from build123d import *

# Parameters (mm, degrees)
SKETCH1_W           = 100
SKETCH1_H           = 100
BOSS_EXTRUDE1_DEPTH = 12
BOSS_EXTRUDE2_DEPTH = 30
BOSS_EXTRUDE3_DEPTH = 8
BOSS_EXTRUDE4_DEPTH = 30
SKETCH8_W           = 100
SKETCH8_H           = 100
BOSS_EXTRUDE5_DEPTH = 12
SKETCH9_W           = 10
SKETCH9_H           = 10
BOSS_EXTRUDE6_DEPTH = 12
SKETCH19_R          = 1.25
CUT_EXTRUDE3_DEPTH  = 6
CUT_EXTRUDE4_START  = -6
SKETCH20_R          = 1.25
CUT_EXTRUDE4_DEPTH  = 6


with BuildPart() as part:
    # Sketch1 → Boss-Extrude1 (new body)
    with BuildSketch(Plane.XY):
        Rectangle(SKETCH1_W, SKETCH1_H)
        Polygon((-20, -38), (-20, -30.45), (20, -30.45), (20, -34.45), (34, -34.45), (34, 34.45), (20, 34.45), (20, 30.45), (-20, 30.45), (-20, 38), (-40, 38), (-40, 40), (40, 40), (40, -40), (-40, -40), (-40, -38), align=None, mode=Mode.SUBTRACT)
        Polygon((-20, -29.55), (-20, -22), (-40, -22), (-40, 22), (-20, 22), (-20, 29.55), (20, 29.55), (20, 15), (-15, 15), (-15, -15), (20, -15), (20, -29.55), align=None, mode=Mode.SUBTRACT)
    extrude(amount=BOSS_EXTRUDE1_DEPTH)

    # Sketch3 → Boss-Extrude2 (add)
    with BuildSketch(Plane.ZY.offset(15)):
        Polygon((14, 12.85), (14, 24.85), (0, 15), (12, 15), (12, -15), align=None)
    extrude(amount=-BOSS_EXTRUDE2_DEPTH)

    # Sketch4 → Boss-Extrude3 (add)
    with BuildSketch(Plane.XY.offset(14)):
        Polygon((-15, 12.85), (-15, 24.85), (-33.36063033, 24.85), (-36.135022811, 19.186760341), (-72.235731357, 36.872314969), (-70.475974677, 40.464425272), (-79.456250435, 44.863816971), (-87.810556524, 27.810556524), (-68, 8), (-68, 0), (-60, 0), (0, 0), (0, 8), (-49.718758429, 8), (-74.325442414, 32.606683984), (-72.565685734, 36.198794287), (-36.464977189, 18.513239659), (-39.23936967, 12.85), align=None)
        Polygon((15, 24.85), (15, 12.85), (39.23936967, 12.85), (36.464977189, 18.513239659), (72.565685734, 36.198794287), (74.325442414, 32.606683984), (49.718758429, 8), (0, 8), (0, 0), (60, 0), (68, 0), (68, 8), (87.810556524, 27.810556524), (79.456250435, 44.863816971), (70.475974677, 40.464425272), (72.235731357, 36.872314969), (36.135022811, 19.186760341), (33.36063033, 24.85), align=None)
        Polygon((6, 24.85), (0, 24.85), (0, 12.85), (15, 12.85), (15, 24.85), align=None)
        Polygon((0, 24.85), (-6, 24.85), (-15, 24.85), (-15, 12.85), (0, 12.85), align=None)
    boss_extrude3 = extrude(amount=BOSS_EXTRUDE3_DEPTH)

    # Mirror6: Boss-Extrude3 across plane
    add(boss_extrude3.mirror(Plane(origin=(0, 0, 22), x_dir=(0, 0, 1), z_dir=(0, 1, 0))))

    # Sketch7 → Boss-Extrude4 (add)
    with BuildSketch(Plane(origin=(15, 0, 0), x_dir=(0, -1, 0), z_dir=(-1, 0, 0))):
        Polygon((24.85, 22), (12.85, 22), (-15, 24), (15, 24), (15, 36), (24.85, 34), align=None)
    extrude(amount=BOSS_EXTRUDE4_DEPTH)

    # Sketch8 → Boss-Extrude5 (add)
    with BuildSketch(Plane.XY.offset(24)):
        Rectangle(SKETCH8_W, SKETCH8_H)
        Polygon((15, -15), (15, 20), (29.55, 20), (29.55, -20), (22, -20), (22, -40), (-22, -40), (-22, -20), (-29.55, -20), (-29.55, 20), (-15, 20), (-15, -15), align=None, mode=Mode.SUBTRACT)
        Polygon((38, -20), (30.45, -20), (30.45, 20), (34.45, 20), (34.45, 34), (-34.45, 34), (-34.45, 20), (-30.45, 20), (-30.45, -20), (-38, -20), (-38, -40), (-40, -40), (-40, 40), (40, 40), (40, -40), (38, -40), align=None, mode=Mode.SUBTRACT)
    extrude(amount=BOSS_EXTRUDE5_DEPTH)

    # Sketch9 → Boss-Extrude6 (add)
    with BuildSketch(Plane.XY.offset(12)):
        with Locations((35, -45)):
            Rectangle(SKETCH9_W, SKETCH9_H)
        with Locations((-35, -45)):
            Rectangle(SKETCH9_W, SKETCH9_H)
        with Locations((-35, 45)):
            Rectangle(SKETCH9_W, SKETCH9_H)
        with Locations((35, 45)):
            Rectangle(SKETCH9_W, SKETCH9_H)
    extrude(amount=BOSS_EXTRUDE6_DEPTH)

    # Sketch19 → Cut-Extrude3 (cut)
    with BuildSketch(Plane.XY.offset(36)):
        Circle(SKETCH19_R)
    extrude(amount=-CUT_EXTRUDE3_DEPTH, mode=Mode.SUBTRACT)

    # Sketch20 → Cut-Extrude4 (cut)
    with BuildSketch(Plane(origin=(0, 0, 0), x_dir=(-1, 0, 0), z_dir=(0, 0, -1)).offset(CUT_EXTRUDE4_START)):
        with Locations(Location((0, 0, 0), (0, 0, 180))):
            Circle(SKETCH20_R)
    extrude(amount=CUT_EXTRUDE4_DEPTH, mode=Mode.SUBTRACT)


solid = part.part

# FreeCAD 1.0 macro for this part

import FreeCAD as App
import Part
import Sketcher
Q = App.Units.Quantity


def add_polygon(sketch, points):
    """Adds a closed chain of lines whose ends are joined by coincident constraints."""
    first, n = sketch.GeometryCount, len(points)
    for a, b in zip(points, points[1:] + points[:1]):
        sketch.addGeometry(Part.LineSegment(App.Vector(*a, 0), App.Vector(*b, 0)), False)
    for i in range(n):
        sketch.addConstraint(Sketcher.Constraint("Coincident", first + i, 2, first + (i + 1) % n, 1))

doc = App.newDocument("Part")
params = doc.addObject("Spreadsheet::Sheet", "Params")
for row, (alias, value) in enumerate([
    ("sketch1_width", "100 mm"),
    ("sketch1_width2", "40 mm"),
    ("sketch1_width3", "20 mm"),
    ("sketch1_width4", "35 mm"),
    ("sketch1_width5", "14 mm"),
    ("pad1_length", "12 mm"),
    ("sketch2_width", "12 mm"),
    ("sketch2_width2", "30 mm"),
    ("pad2_length", "30 mm"),
    ("sketch3_width", "136 mm"),
    ("sketch3_height", "8 mm"),
    ("sketch3_length", "4 mm"),
    ("sketch3_length2", "10 mm"),
    ("sketch3_length3", "40.2 mm"),
    ("pad3_length", "8 mm"),
    ("sketch4_width", "12 mm"),
    ("sketch4_width2", "30 mm"),
    ("pad4_length", "30 mm"),
    ("sketch5_width", "100 mm"),
    ("sketch5_width2", "30 mm"),
    ("sketch5_width3", "44 mm"),
    ("sketch5_width4", "4 mm"),
    ("sketch5_width5", "2 mm"),
    ("pad5_length", "12 mm"),
    ("sketch6_width", "10 mm"),
    ("pad6_length", "12 mm"),
    ("sketch7_diameter", "2.5 mm"),
    ("pocket1_length", "6 mm"),
    ("sketch8_diameter", "2.5 mm"),
    ("pocket2_length", "6 mm"),
], start=1):
    params.set(f"A{row}", alias)
    params.set(f"B{row}", "=" + value)
    params.setAlias(f"B{row}", alias)

body = doc.addObject("PartDesign::Body", "Body")

sketch1 = body.newObject("Sketcher::SketchObject", "Sketch")
sketch1.AttachmentSupport = (doc.getObject("XY_Plane"), [""])
sketch1.MapMode = "FlatFace"
add_polygon(sketch1, [(-50, 50), (-50, -50), (50, -50), (50, 50)])
add_polygon(sketch1, [(20, -29.55), (-20, -29.55), (-20, -22), (-40, -22), (-40, 22), (-20, 22), (-20, 29.55), (20, 29.55), (20, 15), (-15, 15), (-15, -15), (20, -15)])
add_polygon(sketch1, [(-40, -38), (-20, -38), (-20, -30.45), (20, -30.45), (20, -34.45), (34, -34.45), (34, 34.45), (20, 34.45), (20, 30.45), (-20, 30.45), (-20, 38), (-40, 38), (-40, 40), (40, 40), (40, -40), (-40, -40)])
sketch1.addConstraint(Sketcher.Constraint("Vertical", 0))
sketch1.addConstraint(Sketcher.Constraint("Horizontal", 1))
sketch1.addConstraint(Sketcher.Constraint("Vertical", 2))
sketch1.addConstraint(Sketcher.Constraint("Horizontal", 3))
sketch1.addConstraint(Sketcher.Constraint("Horizontal", 4))
sketch1.addConstraint(Sketcher.Constraint("Vertical", 5))
sketch1.addConstraint(Sketcher.Constraint("Horizontal", 6))
sketch1.addConstraint(Sketcher.Constraint("Vertical", 7))
sketch1.addConstraint(Sketcher.Constraint("Horizontal", 8))
sketch1.addConstraint(Sketcher.Constraint("Vertical", 9))
sketch1.addConstraint(Sketcher.Constraint("Horizontal", 10))
sketch1.addConstraint(Sketcher.Constraint("Vertical", 11))
sketch1.addConstraint(Sketcher.Constraint("Horizontal", 12))
sketch1.addConstraint(Sketcher.Constraint("Vertical", 13))
sketch1.addConstraint(Sketcher.Constraint("Horizontal", 14))
sketch1.addConstraint(Sketcher.Constraint("Vertical", 15))
sketch1.addConstraint(Sketcher.Constraint("Horizontal", 16))
sketch1.addConstraint(Sketcher.Constraint("Vertical", 17))
sketch1.addConstraint(Sketcher.Constraint("Horizontal", 18))
sketch1.addConstraint(Sketcher.Constraint("Vertical", 19))
sketch1.addConstraint(Sketcher.Constraint("Horizontal", 20))
sketch1.addConstraint(Sketcher.Constraint("Vertical", 21))
sketch1.addConstraint(Sketcher.Constraint("Horizontal", 22))
sketch1.addConstraint(Sketcher.Constraint("Vertical", 23))
sketch1.addConstraint(Sketcher.Constraint("Horizontal", 24))
sketch1.addConstraint(Sketcher.Constraint("Vertical", 25))
sketch1.addConstraint(Sketcher.Constraint("Horizontal", 26))
sketch1.addConstraint(Sketcher.Constraint("Vertical", 27))
sketch1.addConstraint(Sketcher.Constraint("Horizontal", 28))
sketch1.addConstraint(Sketcher.Constraint("Vertical", 29))
sketch1.addConstraint(Sketcher.Constraint("Horizontal", 30))
sketch1.addConstraint(Sketcher.Constraint("Vertical", 31))
sketch1.addConstraint(Sketcher.Constraint("Symmetric", 0, 2, 2, 2, -1, 1))
sketch1.addConstraint(Sketcher.Constraint("Symmetric", 4, 2, 10, 2, -1, 1))
sketch1.addConstraint(Sketcher.Constraint("Symmetric", 17, 2, 23, 2, -1, 1))
sketch1.addConstraint(Sketcher.Constraint("Symmetric", 27, 2, 29, 2, -1, 1))
sketch1.addConstraint(Sketcher.Constraint("Symmetric", 5, 2, 8, 2, -1))
sketch1.addConstraint(Sketcher.Constraint("Symmetric", 11, 2, 14, 2, -1))
sketch1.addConstraint(Sketcher.Constraint("Symmetric", 19, 2, 22, 2, -1))
sketch1.addConstraint(Sketcher.Constraint("Symmetric", 16, 2, 25, 2, -1))
sketch1.addConstraint(Sketcher.Constraint("Vertical", 9, 2, 16, 2))
sketch1.addConstraint(Sketcher.Constraint("Vertical", 7, 2, 26, 2))
sketch1.addConstraint(Sketcher.Constraint("Vertical", 27, 2, 30, 2))
sketch1.addConstraint(Sketcher.Constraint("Equal", 3, 0))
sketch1.addConstraint(Sketcher.Constraint("Equal", 9, 17))
sketch1.addConstraint(Sketcher.Constraint("Equal", 30, 29))
sketch1.addConstraint(Sketcher.Constraint("DistanceX", 1, 1, 1, 2, 100.0))
sketch1.addConstraint(Sketcher.Constraint("DistanceX", 4, 2, 4, 1, 40.0))
sketch1.addConstraint(Sketcher.Constraint("DistanceX", 6, 2, 6, 1, 20.0))
sketch1.addConstraint(Sketcher.Constraint("DistanceX", 12, 2, 12, 1, 35.0))
sketch1.addConstraint(Sketcher.Constraint("DistanceX", 20, 1, 20, 2, 14.0))
sketch1.addConstraint(Sketcher.Constraint("DistanceY", 7, 1, 7, 2, 44.0))
sketch1.addConstraint(Sketcher.Constraint("DistanceY", 13, 2, 13, 1, 30.0))
sketch1.addConstraint(Sketcher.Constraint("DistanceY", 19, 2, 19, 1, 4.0))
sketch1.addConstraint(Sketcher.Constraint("DistanceY", 27, 1, 27, 2, 2.0))
sketch1.addConstraint(Sketcher.Constraint("DistanceY", 21, 1, 21, 2, 68.9))
sketch1.setExpression("Constraints[78]", "Params.sketch1_width")
sketch1.setExpression("Constraints[79]", "Params.sketch1_width2")
sketch1.setExpression("Constraints[80]", "Params.sketch1_width3")
sketch1.setExpression("Constraints[81]", "Params.sketch1_width4")
sketch1.setExpression("Constraints[82]", "Params.sketch1_width5")
pad1 = body.newObject("PartDesign::Pad", "Pad")
pad1.Profile = sketch1
pad1.setExpression("Length", "Params.pad1_length")

sketch2 = body.newObject("Sketcher::SketchObject", "Sketch001")
sketch2.AttachmentSupport = (doc.getObject("YZ_Plane"), [""])
sketch2.MapMode = "FlatFace"
sketch2.AttachmentOffset = App.Placement(App.Vector(0, 0, -15), App.Rotation())
add_polygon(sketch2, [(12.85, 14), (24.85, 14), (15, 0), (15, 12), (-15, 12)])
sketch2.addConstraint(Sketcher.Constraint("Horizontal", 0))
sketch2.addConstraint(Sketcher.Constraint("Vertical", 2))
sketch2.addConstraint(Sketcher.Constraint("Horizontal", 3))
sketch2.addConstraint(Sketcher.Constraint("PointOnObject", 1, 2, -1))
sketch2.addConstraint(Sketcher.Constraint("Equal", 0, 2))
sketch2.addConstraint(Sketcher.Constraint("DistanceX", 0, 1, 0, 2, 12.0))
sketch2.addConstraint(Sketcher.Constraint("DistanceX", 3, 2, 3, 1, 30.0))
sketch2.addConstraint(Sketcher.Constraint("DistanceY", -1, 1, 0, 2, 14.0))
sketch2.addConstraint(Sketcher.Constraint("DistanceX", -1, 1, 1, 2, 15.0))
sketch2.addConstraint(Sketcher.Constraint("DistanceX", -1, 1, 0, 2, 24.85))
sketch2.setExpression("Constraints[10]", "Params.sketch2_width")
sketch2.setExpression("Constraints[11]", "Params.sketch2_width2")
pad2 = body.newObject("PartDesign::Pad", "Pad001")
pad2.Profile = sketch2
pad2.setExpression("Length", "Params.pad2_length")

sketch3 = body.newObject("Sketcher::SketchObject", "Sketch002")
sketch3.AttachmentSupport = (doc.getObject("XY_Plane"), [""])
sketch3.MapMode = "FlatFace"
sketch3.AttachmentOffset = App.Placement(App.Vector(0, 0, 14), App.Rotation())
add_polygon(sketch3, [(-33.36063, 24.85), (-36.135023, 19.18676), (-72.235731, 36.872315), (-70.475975, 40.464425), (-79.45625, 44.863817), (-87.810557, 27.810557), (-68, 8), (-68, 0), (68, 0), (68, 8), (87.810557, 27.810557), (79.45625, 44.863817), (70.475975, 40.464425), (72.235731, 36.872315), (36.135023, 19.18676), (33.36063, 24.85)])
add_polygon(sketch3, [(39.23937, 12.85), (36.464977, 18.51324), (72.565686, 36.198794), (74.325442, 32.606684), (49.718758, 8), (-49.718758, 8), (-74.325442, 32.606684), (-72.565686, 36.198794), (-36.464977, 18.51324), (-39.23937, 12.85)])
sketch3.addConstraint(Sketcher.Constraint("Vertical", 6))
sketch3.addConstraint(Sketcher.Constraint("Horizontal", 7))
sketch3.addConstraint(Sketcher.Constraint("Vertical", 8))
sketch3.addConstraint(Sketcher.Constraint("Horizontal", 15))
sketch3.addConstraint(Sketcher.Constraint("Horizontal", 20))
sketch3.addConstraint(Sketcher.Constraint("Horizontal", 25))
sketch3.addConstraint(Sketcher.Constraint("Symmetric", 6, 2, 7, 2, -1, 1))
sketch3.addConstraint(Sketcher.Constraint("Symmetric", 4, 2, 9, 2, -2))
sketch3.addConstraint(Sketcher.Constraint("Symmetric", 3, 2, 10, 2, -2))
sketch3.addConstraint(Sketcher.Constraint("Symmetric", 2, 2, 11, 2, -2))
sketch3.addConstraint(Sketcher.Constraint("Symmetric", 1, 2, 12, 2, -2))
sketch3.addConstraint(Sketcher.Constraint("Symmetric", 0, 2, 13, 2, -2))
sketch3.addConstraint(Sketcher.Constraint("Symmetric", 18, 2, 21, 2, -2))
sketch3.addConstraint(Sketcher.Constraint("Symmetric", 17, 2, 22, 2, -2))
sketch3.addConstraint(Sketcher.Constraint("Symmetric", 16, 2, 23, 2, -2))
sketch3.addConstraint(Sketcher.Constraint("Perpendicular", 0, 1))
sketch3.addConstraint(Sketcher.Constraint("Perpendicular", 1, 2))
sketch3.addConstraint(Sketcher.Constraint("Perpendicular", 2, 3))
sketch3.addConstraint(Sketcher.Constraint("Perpendicular", 3, 4))
sketch3.addConstraint(Sketcher.Constraint("Perpendicular", 5, 9))
sketch3.addConstraint(Sketcher.Constraint("Perpendicular", 13, 14))
sketch3.addConstraint(Sketcher.Constraint("Parallel", 14, 16))
sketch3.addConstraint(Sketcher.Constraint("Perpendicular", 16, 17))
sketch3.addConstraint(Sketcher.Constraint("Perpendicular", 17, 18))
sketch3.addConstraint(Sketcher.Constraint("Parallel", 9, 19))
sketch3.addConstraint(Sketcher.Constraint("Perpendicular", 19, 21))
sketch3.addConstraint(Sketcher.Constraint("Perpendicular", 23, 24))
sketch3.addConstraint(Sketcher.Constraint("Horizontal", 5, 2, 8, 2))
sketch3.addConstraint(Sketcher.Constraint("Horizontal", 8, 2, 19, 2))
sketch3.addConstraint(Sketcher.Constraint("Equal", 14, 16))
sketch3.addConstraint(Sketcher.Constraint("Equal", 13, 17))
sketch3.addConstraint(Sketcher.Constraint("Equal", 12, 18))
sketch3.addConstraint(Sketcher.Constraint("DistanceX", 7, 1, 7, 2, 136.0))
sketch3.addConstraint(Sketcher.Constraint("DistanceY", 6, 2, 6, 1, 8.0))
sketch3.addConstraint(Sketcher.Constraint("Distance", 2, 4.0))
sketch3.addConstraint(Sketcher.Constraint("Distance", 3, 10.0))
sketch3.addConstraint(Sketcher.Constraint("Angle", 0, Q("-116.1 deg")))
sketch3.addConstraint(Sketcher.Constraint("DistanceY", 24, 2, 15, 2, 12.0))
sketch3.addConstraint(Sketcher.Constraint("Distance", 1, 40.2))
sketch3.addConstraint(Sketcher.Constraint("DistanceY", -1, 1, 14, 2, 24.85))
sketch3.addConstraint(Sketcher.Constraint("DistanceX", 15, 2, 15, 1, 66.721261))
sketch3.addConstraint(Sketcher.Constraint("DistanceX", 25, 1, 25, 2, 78.478739))
sketch3.addConstraint(Sketcher.Constraint("DistanceX", 14, 2, 12, 2, 38.875101))
sketch3.setExpression("Constraints[58]", "Params.sketch3_width")
sketch3.setExpression("Constraints[59]", "Params.sketch3_height")
sketch3.setExpression("Constraints[60]", "Params.sketch3_length")
sketch3.setExpression("Constraints[61]", "Params.sketch3_length2")
sketch3.setExpression("Constraints[64]", "Params.sketch3_length3")
pad3 = body.newObject("PartDesign::Pad", "Pad002")
pad3.Profile = sketch3
pad3.setExpression("Length", "Params.pad3_length")
doc.recompute()

mirrored = body.newObject("PartDesign::Mirrored", "Mirrored")
mirrored.Originals = [pad3]
mirrored.MirrorPlane = (doc.getObject("XZ_Plane"), [""])
body.Tip = mirrored

sketch4 = body.newObject("Sketcher::SketchObject", "Sketch003")
sketch4.AttachmentSupport = (doc.getObject("YZ_Plane"), [""])
sketch4.MapMode = "FlatFace"
sketch4.AttachmentOffset = App.Placement(App.Vector(0, 0, 15), App.Rotation())
add_polygon(sketch4, [(-12.85, 22), (-24.85, 22), (-24.85, 34), (-15, 36), (-15, 24), (15, 24)])
sketch4.addConstraint(Sketcher.Constraint("Horizontal", 0))
sketch4.addConstraint(Sketcher.Constraint("Vertical", 1))
sketch4.addConstraint(Sketcher.Constraint("Vertical", 3))
sketch4.addConstraint(Sketcher.Constraint("Horizontal", 4))
sketch4.addConstraint(Sketcher.Constraint("Equal", 0, 1))
sketch4.addConstraint(Sketcher.Constraint("Equal", 1, 3))
sketch4.addConstraint(Sketcher.Constraint("DistanceX", 0, 2, 0, 1, 12.0))
sketch4.addConstraint(Sketcher.Constraint("DistanceX", 4, 1, 4, 2, 30.0))
sketch4.addConstraint(Sketcher.Constraint("DistanceY", -1, 1, 0, 2, 22.0))
sketch4.addConstraint(Sketcher.Constraint("DistanceX", 2, 2, -1, 1, 15.0))
sketch4.addConstraint(Sketcher.Constraint("DistanceY", -1, 1, 2, 2, 36.0))
sketch4.addConstraint(Sketcher.Constraint("DistanceX", 0, 2, -1, 1, 24.85))
sketch4.setExpression("Constraints[12]", "Params.sketch4_width")
sketch4.setExpression("Constraints[13]", "Params.sketch4_width2")
pad4 = body.newObject("PartDesign::Pad", "Pad003")
pad4.Profile = sketch4
pad4.setExpression("Length", "Params.pad4_length")
pad4.Reversed = True

sketch5 = body.newObject("Sketcher::SketchObject", "Sketch004")
sketch5.AttachmentSupport = (doc.getObject("XY_Plane"), [""])
sketch5.MapMode = "FlatFace"
sketch5.AttachmentOffset = App.Placement(App.Vector(0, 0, 24), App.Rotation())
add_polygon(sketch5, [(-50, 50), (-50, -50), (50, -50), (50, 50)])
add_polygon(sketch5, [(-15, -15), (15, -15), (15, 20), (29.55, 20), (29.55, -20), (22, -20), (22, -40), (-22, -40), (-22, -20), (-29.55, -20), (-29.55, 20), (-15, 20)])
add_polygon(sketch5, [(38, -40), (38, -20), (30.45, -20), (30.45, 20), (34.45, 20), (34.45, 34), (-34.45, 34), (-34.45, 20), (-30.45, 20), (-30.45, -20), (-38, -20), (-38, -40), (-40, -40), (-40, 40), (40, 40), (40, -40)])
sketch5.addConstraint(Sketcher.Constraint("Vertical", 0))
sketch5.addConstraint(Sketcher.Constraint("Horizontal", 1))
sketch5.addConstraint(Sketcher.Constraint("Vertical", 2))
sketch5.addConstraint(Sketcher.Constraint("Horizontal", 3))
sketch5.addConstraint(Sketcher.Constraint("Horizontal", 4))
sketch5.addConstraint(Sketcher.Constraint("Vertical", 5))
sketch5.addConstraint(Sketcher.Constraint("Horizontal", 6))
sketch5.addConstraint(Sketcher.Constraint("Vertical", 7))
sketch5.addConstraint(Sketcher.Constraint("Horizontal", 8))
sketch5.addConstraint(Sketcher.Constraint("Vertical", 9))
sketch5.addConstraint(Sketcher.Constraint("Horizontal", 10))
sketch5.addConstraint(Sketcher.Constraint("Vertical", 11))
sketch5.addConstraint(Sketcher.Constraint("Horizontal", 12))
sketch5.addConstraint(Sketcher.Constraint("Vertical", 13))
sketch5.addConstraint(Sketcher.Constraint("Horizontal", 14))
sketch5.addConstraint(Sketcher.Constraint("Vertical", 15))
sketch5.addConstraint(Sketcher.Constraint("Vertical", 16))
sketch5.addConstraint(Sketcher.Constraint("Horizontal", 17))
sketch5.addConstraint(Sketcher.Constraint("Vertical", 18))
sketch5.addConstraint(Sketcher.Constraint("Horizontal", 19))
sketch5.addConstraint(Sketcher.Constraint("Vertical", 20))
sketch5.addConstraint(Sketcher.Constraint("Horizontal", 21))
sketch5.addConstraint(Sketcher.Constraint("Vertical", 22))
sketch5.addConstraint(Sketcher.Constraint("Horizontal", 23))
sketch5.addConstraint(Sketcher.Constraint("Vertical", 24))
sketch5.addConstraint(Sketcher.Constraint("Horizontal", 25))
sketch5.addConstraint(Sketcher.Constraint("Vertical", 26))
sketch5.addConstraint(Sketcher.Constraint("Horizontal", 27))
sketch5.addConstraint(Sketcher.Constraint("Vertical", 28))
sketch5.addConstraint(Sketcher.Constraint("Horizontal", 29))
sketch5.addConstraint(Sketcher.Constraint("Vertical", 30))
sketch5.addConstraint(Sketcher.Constraint("Horizontal", 31))
sketch5.addConstraint(Sketcher.Constraint("Symmetric", 0, 2, 2, 2, -1, 1))
sketch5.addConstraint(Sketcher.Constraint("Symmetric", 6, 2, 12, 2, -1, 1))
sketch5.addConstraint(Sketcher.Constraint("Symmetric", 17, 2, 23, 2, -1, 1))
sketch5.addConstraint(Sketcher.Constraint("Symmetric", 27, 2, 29, 2, -1, 1))
sketch5.addConstraint(Sketcher.Constraint("Symmetric", 8, 2, 11, 2, -2))
sketch5.addConstraint(Sketcher.Constraint("Symmetric", 5, 2, 14, 2, -2))
sketch5.addConstraint(Sketcher.Constraint("Symmetric", 19, 2, 22, 2, -2))
sketch5.addConstraint(Sketcher.Constraint("Symmetric", 16, 2, 25, 2, -2))
sketch5.addConstraint(Sketcher.Constraint("Horizontal", 12, 2, 16, 2))
sketch5.addConstraint(Sketcher.Constraint("Horizontal", 10, 2, 26, 2))
sketch5.addConstraint(Sketcher.Constraint("Horizontal", 27, 2, 30, 2))
sketch5.addConstraint(Sketcher.Constraint("Equal", 12, 17))
sketch5.addConstraint(Sketcher.Constraint("Equal", 3, 0))
sketch5.addConstraint(Sketcher.Constraint("Equal", 29, 28))
sketch5.addConstraint(Sketcher.Constraint("DistanceX", 1, 1, 1, 2, 100.0))
sketch5.addConstraint(Sketcher.Constraint("DistanceX", 4, 1, 4, 2, 30.0))
sketch5.addConstraint(Sketcher.Constraint("DistanceX", 10, 2, 10, 1, 44.0))
sketch5.addConstraint(Sketcher.Constraint("DistanceX", 19, 1, 19, 2, 4.0))
sketch5.addConstraint(Sketcher.Constraint("DistanceX", 27, 2, 27, 1, 2.0))
sketch5.addConstraint(Sketcher.Constraint("DistanceX", 29, 1, 29, 2, 80.0))
sketch5.addConstraint(Sketcher.Constraint("DistanceY", 5, 1, 5, 2, 35.0))
sketch5.addConstraint(Sketcher.Constraint("DistanceY", 7, 2, 7, 1, 40.0))
sketch5.addConstraint(Sketcher.Constraint("DistanceY", 20, 1, 20, 2, 14.0))
sketch5.addConstraint(Sketcher.Constraint("DistanceX", 21, 2, 21, 1, 68.9))
sketch5.setExpression("Constraints[78]", "Params.sketch5_width")
sketch5.setExpression("Constraints[79]", "Params.sketch5_width2")
sketch5.setExpression("Constraints[80]", "Params.sketch5_width3")
sketch5.setExpression("Constraints[81]", "Params.sketch5_width4")
sketch5.setExpression("Constraints[82]", "Params.sketch5_width5")
pad5 = body.newObject("PartDesign::Pad", "Pad004")
pad5.Profile = sketch5
pad5.setExpression("Length", "Params.pad5_length")

sketch6 = body.newObject("Sketcher::SketchObject", "Sketch005")
sketch6.AttachmentSupport = (doc.getObject("XY_Plane"), [""])
sketch6.MapMode = "FlatFace"
sketch6.AttachmentOffset = App.Placement(App.Vector(0, 0, 12), App.Rotation())
add_polygon(sketch6, [(30, -40), (30, -50), (40, -50), (40, -40)])
add_polygon(sketch6, [(-40, -40), (-40, -50), (-30, -50), (-30, -40)])
add_polygon(sketch6, [(-40, 50), (-40, 40), (-30, 40), (-30, 50)])
add_polygon(sketch6, [(30, 50), (30, 40), (40, 40), (40, 50)])
sketch6.addConstraint(Sketcher.Constraint("Vertical", 0))
sketch6.addConstraint(Sketcher.Constraint("Horizontal", 1))
sketch6.addConstraint(Sketcher.Constraint("Vertical", 2))
sketch6.addConstraint(Sketcher.Constraint("Horizontal", 3))
sketch6.addConstraint(Sketcher.Constraint("Vertical", 4))
sketch6.addConstraint(Sketcher.Constraint("Horizontal", 5))
sketch6.addConstraint(Sketcher.Constraint("Vertical", 6))
sketch6.addConstraint(Sketcher.Constraint("Horizontal", 7))
sketch6.addConstraint(Sketcher.Constraint("Vertical", 8))
sketch6.addConstraint(Sketcher.Constraint("Horizontal", 9))
sketch6.addConstraint(Sketcher.Constraint("Vertical", 10))
sketch6.addConstraint(Sketcher.Constraint("Horizontal", 11))
sketch6.addConstraint(Sketcher.Constraint("Vertical", 12))
sketch6.addConstraint(Sketcher.Constraint("Horizontal", 13))
sketch6.addConstraint(Sketcher.Constraint("Vertical", 14))
sketch6.addConstraint(Sketcher.Constraint("Horizontal", 15))
sketch6.addConstraint(Sketcher.Constraint("Symmetric", 2, 2, 8, 2, -1, 1))
sketch6.addConstraint(Sketcher.Constraint("Symmetric", 0, 2, 10, 2, -1, 1))
sketch6.addConstraint(Sketcher.Constraint("Symmetric", 6, 2, 12, 2, -1, 1))
sketch6.addConstraint(Sketcher.Constraint("Symmetric", 4, 2, 14, 2, -1, 1))
sketch6.addConstraint(Sketcher.Constraint("Symmetric", 1, 2, 4, 2, -2))
sketch6.addConstraint(Sketcher.Constraint("Symmetric", 3, 2, 6, 2, -2))
sketch6.addConstraint(Sketcher.Constraint("Equal", 15, 0))
sketch6.addConstraint(Sketcher.Constraint("DistanceX", 1, 1, 1, 2, 10.0))
sketch6.addConstraint(Sketcher.Constraint("DistanceX", -1, 1, 0, 2, 30.0))
sketch6.addConstraint(Sketcher.Constraint("DistanceY", 0, 2, -1, 1, 50.0))
sketch6.setExpression("Constraints[39]", "Params.sketch6_width")
pad6 = body.newObject("PartDesign::Pad", "Pad005")
pad6.Profile = sketch6
pad6.setExpression("Length", "Params.pad6_length")

sketch7 = body.newObject("Sketcher::SketchObject", "Sketch006")
sketch7.AttachmentSupport = (doc.getObject("XY_Plane"), [""])
sketch7.MapMode = "FlatFace"
sketch7.AttachmentOffset = App.Placement(App.Vector(0, 0, 36), App.Rotation())
sketch7.addGeometry(Part.Circle(App.Vector(0, 0, 0), App.Vector(0, 0, 1), 1.25), False)
sketch7.addConstraint(Sketcher.Constraint("Coincident", 0, 3, -1, 1))
sketch7.addConstraint(Sketcher.Constraint("Diameter", 0, 2.5))
sketch7.setExpression("Constraints[1]", "Params.sketch7_diameter")
pocket1 = body.newObject("PartDesign::Pocket", "Pocket")
pocket1.Profile = sketch7
pocket1.setExpression("Length", "Params.pocket1_length")

sketch8 = body.newObject("Sketcher::SketchObject", "Sketch007")
sketch8.AttachmentSupport = (doc.getObject("XY_Plane"), [""])
sketch8.MapMode = "FlatFace"
sketch8.AttachmentOffset = App.Placement(App.Vector(0, 0, 6), App.Rotation())
sketch8.addGeometry(Part.Circle(App.Vector(0, 0, 0), App.Vector(0, 0, 1), 1.25), False)
sketch8.addConstraint(Sketcher.Constraint("Coincident", 0, 3, -1, 1))
sketch8.addConstraint(Sketcher.Constraint("Diameter", 0, 2.5))
sketch8.setExpression("Constraints[1]", "Params.sketch8_diameter")
pocket2 = body.newObject("PartDesign::Pocket", "Pocket001")
pocket2.Profile = sketch8
pocket2.setExpression("Length", "Params.pocket2_length")

doc.recompute()
